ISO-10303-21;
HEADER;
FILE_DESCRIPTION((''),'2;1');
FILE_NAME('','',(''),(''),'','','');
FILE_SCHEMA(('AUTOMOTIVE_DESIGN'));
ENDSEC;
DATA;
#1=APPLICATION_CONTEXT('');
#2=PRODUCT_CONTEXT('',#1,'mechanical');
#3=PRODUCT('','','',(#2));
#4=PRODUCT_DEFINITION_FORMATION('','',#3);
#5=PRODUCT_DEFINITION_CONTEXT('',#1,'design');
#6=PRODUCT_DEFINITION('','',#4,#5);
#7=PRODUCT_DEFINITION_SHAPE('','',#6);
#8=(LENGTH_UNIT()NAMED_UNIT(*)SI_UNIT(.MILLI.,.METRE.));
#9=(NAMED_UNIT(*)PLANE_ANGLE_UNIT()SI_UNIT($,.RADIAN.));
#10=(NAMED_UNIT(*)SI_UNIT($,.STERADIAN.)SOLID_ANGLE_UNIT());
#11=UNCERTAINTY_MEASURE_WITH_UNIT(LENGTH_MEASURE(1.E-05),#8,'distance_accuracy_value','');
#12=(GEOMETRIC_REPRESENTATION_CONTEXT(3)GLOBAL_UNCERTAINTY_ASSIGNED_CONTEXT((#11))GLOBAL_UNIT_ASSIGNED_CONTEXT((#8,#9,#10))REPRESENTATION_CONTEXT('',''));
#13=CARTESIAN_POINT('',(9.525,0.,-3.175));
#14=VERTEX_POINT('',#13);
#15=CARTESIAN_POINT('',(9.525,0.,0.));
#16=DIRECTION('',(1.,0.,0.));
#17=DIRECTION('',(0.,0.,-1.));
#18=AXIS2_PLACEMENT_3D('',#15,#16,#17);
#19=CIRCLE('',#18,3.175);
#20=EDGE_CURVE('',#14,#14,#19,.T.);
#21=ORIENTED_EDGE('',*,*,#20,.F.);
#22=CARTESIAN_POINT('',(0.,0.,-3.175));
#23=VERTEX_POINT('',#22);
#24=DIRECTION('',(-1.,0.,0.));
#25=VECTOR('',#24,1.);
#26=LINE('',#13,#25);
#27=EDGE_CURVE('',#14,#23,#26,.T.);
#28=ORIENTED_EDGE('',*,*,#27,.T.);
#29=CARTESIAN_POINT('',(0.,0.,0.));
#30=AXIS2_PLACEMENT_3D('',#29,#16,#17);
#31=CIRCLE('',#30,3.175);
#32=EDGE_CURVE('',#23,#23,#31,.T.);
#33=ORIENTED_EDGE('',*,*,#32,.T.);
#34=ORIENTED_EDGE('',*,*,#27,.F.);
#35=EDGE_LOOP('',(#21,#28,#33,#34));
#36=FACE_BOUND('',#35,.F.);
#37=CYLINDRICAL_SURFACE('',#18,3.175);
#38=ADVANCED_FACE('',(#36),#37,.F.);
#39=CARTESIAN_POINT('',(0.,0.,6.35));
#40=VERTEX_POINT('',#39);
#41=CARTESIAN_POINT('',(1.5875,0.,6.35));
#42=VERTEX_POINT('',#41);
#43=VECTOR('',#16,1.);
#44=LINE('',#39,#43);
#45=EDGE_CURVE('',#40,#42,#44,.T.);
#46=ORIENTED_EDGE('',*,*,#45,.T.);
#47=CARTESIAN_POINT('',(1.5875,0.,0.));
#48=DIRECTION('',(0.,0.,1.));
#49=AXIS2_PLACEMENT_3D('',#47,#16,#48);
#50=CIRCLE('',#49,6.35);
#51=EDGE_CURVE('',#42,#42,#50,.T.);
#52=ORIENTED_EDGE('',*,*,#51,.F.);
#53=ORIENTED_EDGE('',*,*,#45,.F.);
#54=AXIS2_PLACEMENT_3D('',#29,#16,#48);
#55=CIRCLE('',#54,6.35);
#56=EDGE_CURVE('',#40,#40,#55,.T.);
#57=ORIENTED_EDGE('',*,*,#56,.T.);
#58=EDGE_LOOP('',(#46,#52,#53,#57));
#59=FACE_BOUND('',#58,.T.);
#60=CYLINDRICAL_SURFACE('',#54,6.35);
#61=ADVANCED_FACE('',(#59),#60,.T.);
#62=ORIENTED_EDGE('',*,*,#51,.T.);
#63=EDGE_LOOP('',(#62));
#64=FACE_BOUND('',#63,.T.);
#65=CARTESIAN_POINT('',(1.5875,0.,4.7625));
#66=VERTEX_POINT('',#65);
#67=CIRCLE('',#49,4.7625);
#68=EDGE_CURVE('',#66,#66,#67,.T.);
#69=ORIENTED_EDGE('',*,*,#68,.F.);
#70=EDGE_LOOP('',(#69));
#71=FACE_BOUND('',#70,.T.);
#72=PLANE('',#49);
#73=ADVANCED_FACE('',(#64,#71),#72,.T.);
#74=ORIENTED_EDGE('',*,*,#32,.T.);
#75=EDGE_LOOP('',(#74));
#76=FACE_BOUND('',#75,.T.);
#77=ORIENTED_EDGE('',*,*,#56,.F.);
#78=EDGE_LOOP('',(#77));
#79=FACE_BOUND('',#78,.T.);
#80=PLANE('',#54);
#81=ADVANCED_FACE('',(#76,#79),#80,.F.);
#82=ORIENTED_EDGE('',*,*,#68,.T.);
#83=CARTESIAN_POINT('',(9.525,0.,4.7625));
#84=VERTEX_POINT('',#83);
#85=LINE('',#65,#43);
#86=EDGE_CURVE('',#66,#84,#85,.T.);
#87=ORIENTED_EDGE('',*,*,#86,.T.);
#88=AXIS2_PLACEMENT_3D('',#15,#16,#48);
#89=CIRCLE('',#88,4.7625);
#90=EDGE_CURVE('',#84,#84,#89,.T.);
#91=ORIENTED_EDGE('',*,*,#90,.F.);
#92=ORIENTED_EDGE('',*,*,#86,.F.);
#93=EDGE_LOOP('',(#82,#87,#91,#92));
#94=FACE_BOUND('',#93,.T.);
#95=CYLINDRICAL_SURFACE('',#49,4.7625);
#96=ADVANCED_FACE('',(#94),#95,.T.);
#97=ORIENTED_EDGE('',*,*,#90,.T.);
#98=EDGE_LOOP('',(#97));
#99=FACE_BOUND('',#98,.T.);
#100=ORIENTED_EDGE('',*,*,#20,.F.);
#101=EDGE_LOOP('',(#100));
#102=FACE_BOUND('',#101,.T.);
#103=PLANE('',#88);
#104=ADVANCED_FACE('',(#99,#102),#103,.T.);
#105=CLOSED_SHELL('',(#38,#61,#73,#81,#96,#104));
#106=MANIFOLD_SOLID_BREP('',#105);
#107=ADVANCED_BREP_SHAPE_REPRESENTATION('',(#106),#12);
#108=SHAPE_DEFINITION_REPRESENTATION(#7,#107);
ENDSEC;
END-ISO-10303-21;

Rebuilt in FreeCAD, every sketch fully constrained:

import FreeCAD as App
import Part
import Sketcher
Q = App.Units.Quantity


def add_polygon(sketch, points):
    """Adds a closed chain of lines whose ends are joined by coincident constraints."""
    first, n = sketch.GeometryCount, len(points)
    for a, b in zip(points, points[1:] + points[:1]):
        sketch.addGeometry(Part.LineSegment(App.Vector(*a, 0), App.Vector(*b, 0)), False)
    for i in range(n):
        sketch.addConstraint(Sketcher.Constraint("Coincident", first + i, 2, first + (i + 1) % n, 1))

doc = App.newDocument("Part")
body = doc.addObject("PartDesign::Body", "Body")

sketch1 = body.newObject("Sketcher::SketchObject", "Sketch")
sketch1.AttachmentSupport = (doc.getObject("XY_Plane"), [""])
sketch1.MapMode = "FlatFace"
add_polygon(sketch1, [(0, 6.3), (0, 0), (9.5, 0), (9.5, 4.8), (1.6, 4.8), (1.6, 6.3)])
sketch1.addConstraint(Sketcher.Constraint("Vertical", 0))
sketch1.addConstraint(Sketcher.Constraint("Horizontal", 1))
sketch1.addConstraint(Sketcher.Constraint("Vertical", 2))
sketch1.addConstraint(Sketcher.Constraint("Horizontal", 3))
sketch1.addConstraint(Sketcher.Constraint("Vertical", 4))
sketch1.addConstraint(Sketcher.Constraint("Horizontal", 5))
sketch1.addConstraint(Sketcher.Constraint("Coincident", 0, 2, -1, 1))
sketch1.addConstraint(Sketcher.Constraint("Equal", 5, 4))
sketch1.addConstraint(Sketcher.Constraint("DistanceY", 0, 2, 0, 1, Q("0.25 in")))
sketch1.addConstraint(Sketcher.Constraint("DistanceX", 1, 1, 1, 2, Q("0.375 in")))
sketch1.addConstraint(Sketcher.Constraint("DistanceX", 3, 2, 3, 1, Q("0.3125 in")))
revolution = body.newObject("PartDesign::Revolution", "Revolution")
revolution.Profile = sketch1
revolution.ReferenceAxis = (sketch1, ["H_Axis"])
revolution.Angle = 360

sketch2 = body.newObject("Sketcher::SketchObject", "Sketch001")
sketch2.AttachmentSupport = (doc.getObject("YZ_Plane"), [""])
sketch2.MapMode = "FlatFace"
sketch2.AttachmentOffset = App.Placement(App.Vector(0, 0, 0.375 * 25.4), App.Rotation())
sketch2.addGeometry(Part.Circle(App.Vector(0, 0, 0), App.Vector(0, 0, 1), 3.2), False)
sketch2.addConstraint(Sketcher.Constraint("Coincident", 0, 3, -1, 1))
sketch2.addConstraint(Sketcher.Constraint("Diameter", 0, Q("0.25 in")))
pocket1 = body.newObject("PartDesign::Pocket", "Pocket")
pocket1.Profile = sketch2
pocket1.Type = "ThroughAll"

doc.recompute()
